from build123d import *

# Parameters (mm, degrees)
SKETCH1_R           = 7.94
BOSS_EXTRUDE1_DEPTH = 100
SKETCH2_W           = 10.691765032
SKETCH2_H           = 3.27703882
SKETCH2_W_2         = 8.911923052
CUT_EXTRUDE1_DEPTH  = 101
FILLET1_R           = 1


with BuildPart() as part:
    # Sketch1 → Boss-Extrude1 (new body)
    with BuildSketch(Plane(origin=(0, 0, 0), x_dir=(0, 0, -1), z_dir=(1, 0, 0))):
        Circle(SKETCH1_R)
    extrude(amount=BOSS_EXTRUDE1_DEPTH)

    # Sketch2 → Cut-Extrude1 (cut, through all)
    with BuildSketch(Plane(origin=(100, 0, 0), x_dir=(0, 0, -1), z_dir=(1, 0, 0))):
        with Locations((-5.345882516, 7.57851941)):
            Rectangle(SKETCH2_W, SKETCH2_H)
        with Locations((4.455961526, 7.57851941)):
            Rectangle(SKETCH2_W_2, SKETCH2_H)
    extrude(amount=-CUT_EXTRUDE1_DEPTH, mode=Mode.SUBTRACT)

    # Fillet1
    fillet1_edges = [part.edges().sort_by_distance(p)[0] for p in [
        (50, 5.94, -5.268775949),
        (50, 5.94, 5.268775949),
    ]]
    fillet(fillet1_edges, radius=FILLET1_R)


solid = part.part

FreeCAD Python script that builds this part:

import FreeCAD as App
import Part
import Sketcher


def edges_at(feature, points):
    """Names of the edges that pass closest to the given points."""
    edges = feature.Shape.Edges
    near = lambda p: min(range(len(edges)), key=lambda i: edges[i].distToShape(Part.Vertex(*p))[0])
    return sorted({f"Edge{near(p) + 1}" for p in points})

doc = App.newDocument("Part")
body = doc.addObject("PartDesign::Body", "Body")

sketch1 = body.newObject("Sketcher::SketchObject", "Sketch")
sketch1.AttachmentSupport = (doc.getObject("YZ_Plane"), [""])
sketch1.MapMode = "FlatFace"
sketch1.addGeometry(Part.Circle(App.Vector(0, 0, 0), App.Vector(0, 0, 1), 8), False)
sketch1.addConstraint([
    Sketcher.Constraint("Coincident", 0, 3, -1, 1),
    Sketcher.Constraint("Diameter", 0, 15.88),
])
pad1 = body.newObject("PartDesign::Pad", "Pad")
pad1.Profile = sketch1
pad1.Length = 100

sketch2 = body.newObject("Sketcher::SketchObject", "Sketch001")
sketch2.AttachmentSupport = (doc.getObject("YZ_Plane"), [""])
sketch2.MapMode = "FlatFace"
sketch2.AttachmentOffset = App.Placement(App.Vector(0, 0, 100), App.Rotation())
sketch2.addGeometry([
    Part.LineSegment(App.Vector(9.2, 10.7, 0), App.Vector(5.9, 10.7, 0)),
    Part.LineSegment(App.Vector(5.9, 10.7, 0), App.Vector(5.9, -8.9, 0)),
    Part.LineSegment(App.Vector(5.9, -8.9, 0), App.Vector(9.2, -8.9, 0)),
    Part.LineSegment(App.Vector(9.2, -8.9, 0), App.Vector(9.2, 10.7, 0)),
], False)
sketch2.addConstraint([
    Sketcher.Constraint("Coincident", 0, 2, 1, 1),
    Sketcher.Constraint("Coincident", 1, 2, 2, 1),
    Sketcher.Constraint("Coincident", 2, 2, 3, 1),
    Sketcher.Constraint("Coincident", 3, 2, 0, 1),
    Sketcher.Constraint("Horizontal", 0),
    Sketcher.Constraint("Vertical", 1),
    Sketcher.Constraint("Horizontal", 2),
    Sketcher.Constraint("Vertical", 3),
    Sketcher.Constraint("DistanceX", -1, 1, 0, 2, 5.94),
    Sketcher.Constraint("DistanceX", 0, 2, 0, 1, 3.277039),
    Sketcher.Constraint("DistanceY", 1, 2, 1, 1, 19.603688),
    Sketcher.Constraint("DistanceY", -1, 1, 0, 2, 10.691765),
])
pocket1 = body.newObject("PartDesign::Pocket", "Pocket")
pocket1.Profile = sketch2
pocket1.Type = "ThroughAll"
doc.recompute()

fillet = body.newObject("PartDesign::Fillet", "Fillet")
fillet.Base = (pocket1, edges_at(pocket1, [(50, 5.94, -5.269), (50, 5.94, 5.269)]))
fillet.Radius = 1

doc.recompute()
